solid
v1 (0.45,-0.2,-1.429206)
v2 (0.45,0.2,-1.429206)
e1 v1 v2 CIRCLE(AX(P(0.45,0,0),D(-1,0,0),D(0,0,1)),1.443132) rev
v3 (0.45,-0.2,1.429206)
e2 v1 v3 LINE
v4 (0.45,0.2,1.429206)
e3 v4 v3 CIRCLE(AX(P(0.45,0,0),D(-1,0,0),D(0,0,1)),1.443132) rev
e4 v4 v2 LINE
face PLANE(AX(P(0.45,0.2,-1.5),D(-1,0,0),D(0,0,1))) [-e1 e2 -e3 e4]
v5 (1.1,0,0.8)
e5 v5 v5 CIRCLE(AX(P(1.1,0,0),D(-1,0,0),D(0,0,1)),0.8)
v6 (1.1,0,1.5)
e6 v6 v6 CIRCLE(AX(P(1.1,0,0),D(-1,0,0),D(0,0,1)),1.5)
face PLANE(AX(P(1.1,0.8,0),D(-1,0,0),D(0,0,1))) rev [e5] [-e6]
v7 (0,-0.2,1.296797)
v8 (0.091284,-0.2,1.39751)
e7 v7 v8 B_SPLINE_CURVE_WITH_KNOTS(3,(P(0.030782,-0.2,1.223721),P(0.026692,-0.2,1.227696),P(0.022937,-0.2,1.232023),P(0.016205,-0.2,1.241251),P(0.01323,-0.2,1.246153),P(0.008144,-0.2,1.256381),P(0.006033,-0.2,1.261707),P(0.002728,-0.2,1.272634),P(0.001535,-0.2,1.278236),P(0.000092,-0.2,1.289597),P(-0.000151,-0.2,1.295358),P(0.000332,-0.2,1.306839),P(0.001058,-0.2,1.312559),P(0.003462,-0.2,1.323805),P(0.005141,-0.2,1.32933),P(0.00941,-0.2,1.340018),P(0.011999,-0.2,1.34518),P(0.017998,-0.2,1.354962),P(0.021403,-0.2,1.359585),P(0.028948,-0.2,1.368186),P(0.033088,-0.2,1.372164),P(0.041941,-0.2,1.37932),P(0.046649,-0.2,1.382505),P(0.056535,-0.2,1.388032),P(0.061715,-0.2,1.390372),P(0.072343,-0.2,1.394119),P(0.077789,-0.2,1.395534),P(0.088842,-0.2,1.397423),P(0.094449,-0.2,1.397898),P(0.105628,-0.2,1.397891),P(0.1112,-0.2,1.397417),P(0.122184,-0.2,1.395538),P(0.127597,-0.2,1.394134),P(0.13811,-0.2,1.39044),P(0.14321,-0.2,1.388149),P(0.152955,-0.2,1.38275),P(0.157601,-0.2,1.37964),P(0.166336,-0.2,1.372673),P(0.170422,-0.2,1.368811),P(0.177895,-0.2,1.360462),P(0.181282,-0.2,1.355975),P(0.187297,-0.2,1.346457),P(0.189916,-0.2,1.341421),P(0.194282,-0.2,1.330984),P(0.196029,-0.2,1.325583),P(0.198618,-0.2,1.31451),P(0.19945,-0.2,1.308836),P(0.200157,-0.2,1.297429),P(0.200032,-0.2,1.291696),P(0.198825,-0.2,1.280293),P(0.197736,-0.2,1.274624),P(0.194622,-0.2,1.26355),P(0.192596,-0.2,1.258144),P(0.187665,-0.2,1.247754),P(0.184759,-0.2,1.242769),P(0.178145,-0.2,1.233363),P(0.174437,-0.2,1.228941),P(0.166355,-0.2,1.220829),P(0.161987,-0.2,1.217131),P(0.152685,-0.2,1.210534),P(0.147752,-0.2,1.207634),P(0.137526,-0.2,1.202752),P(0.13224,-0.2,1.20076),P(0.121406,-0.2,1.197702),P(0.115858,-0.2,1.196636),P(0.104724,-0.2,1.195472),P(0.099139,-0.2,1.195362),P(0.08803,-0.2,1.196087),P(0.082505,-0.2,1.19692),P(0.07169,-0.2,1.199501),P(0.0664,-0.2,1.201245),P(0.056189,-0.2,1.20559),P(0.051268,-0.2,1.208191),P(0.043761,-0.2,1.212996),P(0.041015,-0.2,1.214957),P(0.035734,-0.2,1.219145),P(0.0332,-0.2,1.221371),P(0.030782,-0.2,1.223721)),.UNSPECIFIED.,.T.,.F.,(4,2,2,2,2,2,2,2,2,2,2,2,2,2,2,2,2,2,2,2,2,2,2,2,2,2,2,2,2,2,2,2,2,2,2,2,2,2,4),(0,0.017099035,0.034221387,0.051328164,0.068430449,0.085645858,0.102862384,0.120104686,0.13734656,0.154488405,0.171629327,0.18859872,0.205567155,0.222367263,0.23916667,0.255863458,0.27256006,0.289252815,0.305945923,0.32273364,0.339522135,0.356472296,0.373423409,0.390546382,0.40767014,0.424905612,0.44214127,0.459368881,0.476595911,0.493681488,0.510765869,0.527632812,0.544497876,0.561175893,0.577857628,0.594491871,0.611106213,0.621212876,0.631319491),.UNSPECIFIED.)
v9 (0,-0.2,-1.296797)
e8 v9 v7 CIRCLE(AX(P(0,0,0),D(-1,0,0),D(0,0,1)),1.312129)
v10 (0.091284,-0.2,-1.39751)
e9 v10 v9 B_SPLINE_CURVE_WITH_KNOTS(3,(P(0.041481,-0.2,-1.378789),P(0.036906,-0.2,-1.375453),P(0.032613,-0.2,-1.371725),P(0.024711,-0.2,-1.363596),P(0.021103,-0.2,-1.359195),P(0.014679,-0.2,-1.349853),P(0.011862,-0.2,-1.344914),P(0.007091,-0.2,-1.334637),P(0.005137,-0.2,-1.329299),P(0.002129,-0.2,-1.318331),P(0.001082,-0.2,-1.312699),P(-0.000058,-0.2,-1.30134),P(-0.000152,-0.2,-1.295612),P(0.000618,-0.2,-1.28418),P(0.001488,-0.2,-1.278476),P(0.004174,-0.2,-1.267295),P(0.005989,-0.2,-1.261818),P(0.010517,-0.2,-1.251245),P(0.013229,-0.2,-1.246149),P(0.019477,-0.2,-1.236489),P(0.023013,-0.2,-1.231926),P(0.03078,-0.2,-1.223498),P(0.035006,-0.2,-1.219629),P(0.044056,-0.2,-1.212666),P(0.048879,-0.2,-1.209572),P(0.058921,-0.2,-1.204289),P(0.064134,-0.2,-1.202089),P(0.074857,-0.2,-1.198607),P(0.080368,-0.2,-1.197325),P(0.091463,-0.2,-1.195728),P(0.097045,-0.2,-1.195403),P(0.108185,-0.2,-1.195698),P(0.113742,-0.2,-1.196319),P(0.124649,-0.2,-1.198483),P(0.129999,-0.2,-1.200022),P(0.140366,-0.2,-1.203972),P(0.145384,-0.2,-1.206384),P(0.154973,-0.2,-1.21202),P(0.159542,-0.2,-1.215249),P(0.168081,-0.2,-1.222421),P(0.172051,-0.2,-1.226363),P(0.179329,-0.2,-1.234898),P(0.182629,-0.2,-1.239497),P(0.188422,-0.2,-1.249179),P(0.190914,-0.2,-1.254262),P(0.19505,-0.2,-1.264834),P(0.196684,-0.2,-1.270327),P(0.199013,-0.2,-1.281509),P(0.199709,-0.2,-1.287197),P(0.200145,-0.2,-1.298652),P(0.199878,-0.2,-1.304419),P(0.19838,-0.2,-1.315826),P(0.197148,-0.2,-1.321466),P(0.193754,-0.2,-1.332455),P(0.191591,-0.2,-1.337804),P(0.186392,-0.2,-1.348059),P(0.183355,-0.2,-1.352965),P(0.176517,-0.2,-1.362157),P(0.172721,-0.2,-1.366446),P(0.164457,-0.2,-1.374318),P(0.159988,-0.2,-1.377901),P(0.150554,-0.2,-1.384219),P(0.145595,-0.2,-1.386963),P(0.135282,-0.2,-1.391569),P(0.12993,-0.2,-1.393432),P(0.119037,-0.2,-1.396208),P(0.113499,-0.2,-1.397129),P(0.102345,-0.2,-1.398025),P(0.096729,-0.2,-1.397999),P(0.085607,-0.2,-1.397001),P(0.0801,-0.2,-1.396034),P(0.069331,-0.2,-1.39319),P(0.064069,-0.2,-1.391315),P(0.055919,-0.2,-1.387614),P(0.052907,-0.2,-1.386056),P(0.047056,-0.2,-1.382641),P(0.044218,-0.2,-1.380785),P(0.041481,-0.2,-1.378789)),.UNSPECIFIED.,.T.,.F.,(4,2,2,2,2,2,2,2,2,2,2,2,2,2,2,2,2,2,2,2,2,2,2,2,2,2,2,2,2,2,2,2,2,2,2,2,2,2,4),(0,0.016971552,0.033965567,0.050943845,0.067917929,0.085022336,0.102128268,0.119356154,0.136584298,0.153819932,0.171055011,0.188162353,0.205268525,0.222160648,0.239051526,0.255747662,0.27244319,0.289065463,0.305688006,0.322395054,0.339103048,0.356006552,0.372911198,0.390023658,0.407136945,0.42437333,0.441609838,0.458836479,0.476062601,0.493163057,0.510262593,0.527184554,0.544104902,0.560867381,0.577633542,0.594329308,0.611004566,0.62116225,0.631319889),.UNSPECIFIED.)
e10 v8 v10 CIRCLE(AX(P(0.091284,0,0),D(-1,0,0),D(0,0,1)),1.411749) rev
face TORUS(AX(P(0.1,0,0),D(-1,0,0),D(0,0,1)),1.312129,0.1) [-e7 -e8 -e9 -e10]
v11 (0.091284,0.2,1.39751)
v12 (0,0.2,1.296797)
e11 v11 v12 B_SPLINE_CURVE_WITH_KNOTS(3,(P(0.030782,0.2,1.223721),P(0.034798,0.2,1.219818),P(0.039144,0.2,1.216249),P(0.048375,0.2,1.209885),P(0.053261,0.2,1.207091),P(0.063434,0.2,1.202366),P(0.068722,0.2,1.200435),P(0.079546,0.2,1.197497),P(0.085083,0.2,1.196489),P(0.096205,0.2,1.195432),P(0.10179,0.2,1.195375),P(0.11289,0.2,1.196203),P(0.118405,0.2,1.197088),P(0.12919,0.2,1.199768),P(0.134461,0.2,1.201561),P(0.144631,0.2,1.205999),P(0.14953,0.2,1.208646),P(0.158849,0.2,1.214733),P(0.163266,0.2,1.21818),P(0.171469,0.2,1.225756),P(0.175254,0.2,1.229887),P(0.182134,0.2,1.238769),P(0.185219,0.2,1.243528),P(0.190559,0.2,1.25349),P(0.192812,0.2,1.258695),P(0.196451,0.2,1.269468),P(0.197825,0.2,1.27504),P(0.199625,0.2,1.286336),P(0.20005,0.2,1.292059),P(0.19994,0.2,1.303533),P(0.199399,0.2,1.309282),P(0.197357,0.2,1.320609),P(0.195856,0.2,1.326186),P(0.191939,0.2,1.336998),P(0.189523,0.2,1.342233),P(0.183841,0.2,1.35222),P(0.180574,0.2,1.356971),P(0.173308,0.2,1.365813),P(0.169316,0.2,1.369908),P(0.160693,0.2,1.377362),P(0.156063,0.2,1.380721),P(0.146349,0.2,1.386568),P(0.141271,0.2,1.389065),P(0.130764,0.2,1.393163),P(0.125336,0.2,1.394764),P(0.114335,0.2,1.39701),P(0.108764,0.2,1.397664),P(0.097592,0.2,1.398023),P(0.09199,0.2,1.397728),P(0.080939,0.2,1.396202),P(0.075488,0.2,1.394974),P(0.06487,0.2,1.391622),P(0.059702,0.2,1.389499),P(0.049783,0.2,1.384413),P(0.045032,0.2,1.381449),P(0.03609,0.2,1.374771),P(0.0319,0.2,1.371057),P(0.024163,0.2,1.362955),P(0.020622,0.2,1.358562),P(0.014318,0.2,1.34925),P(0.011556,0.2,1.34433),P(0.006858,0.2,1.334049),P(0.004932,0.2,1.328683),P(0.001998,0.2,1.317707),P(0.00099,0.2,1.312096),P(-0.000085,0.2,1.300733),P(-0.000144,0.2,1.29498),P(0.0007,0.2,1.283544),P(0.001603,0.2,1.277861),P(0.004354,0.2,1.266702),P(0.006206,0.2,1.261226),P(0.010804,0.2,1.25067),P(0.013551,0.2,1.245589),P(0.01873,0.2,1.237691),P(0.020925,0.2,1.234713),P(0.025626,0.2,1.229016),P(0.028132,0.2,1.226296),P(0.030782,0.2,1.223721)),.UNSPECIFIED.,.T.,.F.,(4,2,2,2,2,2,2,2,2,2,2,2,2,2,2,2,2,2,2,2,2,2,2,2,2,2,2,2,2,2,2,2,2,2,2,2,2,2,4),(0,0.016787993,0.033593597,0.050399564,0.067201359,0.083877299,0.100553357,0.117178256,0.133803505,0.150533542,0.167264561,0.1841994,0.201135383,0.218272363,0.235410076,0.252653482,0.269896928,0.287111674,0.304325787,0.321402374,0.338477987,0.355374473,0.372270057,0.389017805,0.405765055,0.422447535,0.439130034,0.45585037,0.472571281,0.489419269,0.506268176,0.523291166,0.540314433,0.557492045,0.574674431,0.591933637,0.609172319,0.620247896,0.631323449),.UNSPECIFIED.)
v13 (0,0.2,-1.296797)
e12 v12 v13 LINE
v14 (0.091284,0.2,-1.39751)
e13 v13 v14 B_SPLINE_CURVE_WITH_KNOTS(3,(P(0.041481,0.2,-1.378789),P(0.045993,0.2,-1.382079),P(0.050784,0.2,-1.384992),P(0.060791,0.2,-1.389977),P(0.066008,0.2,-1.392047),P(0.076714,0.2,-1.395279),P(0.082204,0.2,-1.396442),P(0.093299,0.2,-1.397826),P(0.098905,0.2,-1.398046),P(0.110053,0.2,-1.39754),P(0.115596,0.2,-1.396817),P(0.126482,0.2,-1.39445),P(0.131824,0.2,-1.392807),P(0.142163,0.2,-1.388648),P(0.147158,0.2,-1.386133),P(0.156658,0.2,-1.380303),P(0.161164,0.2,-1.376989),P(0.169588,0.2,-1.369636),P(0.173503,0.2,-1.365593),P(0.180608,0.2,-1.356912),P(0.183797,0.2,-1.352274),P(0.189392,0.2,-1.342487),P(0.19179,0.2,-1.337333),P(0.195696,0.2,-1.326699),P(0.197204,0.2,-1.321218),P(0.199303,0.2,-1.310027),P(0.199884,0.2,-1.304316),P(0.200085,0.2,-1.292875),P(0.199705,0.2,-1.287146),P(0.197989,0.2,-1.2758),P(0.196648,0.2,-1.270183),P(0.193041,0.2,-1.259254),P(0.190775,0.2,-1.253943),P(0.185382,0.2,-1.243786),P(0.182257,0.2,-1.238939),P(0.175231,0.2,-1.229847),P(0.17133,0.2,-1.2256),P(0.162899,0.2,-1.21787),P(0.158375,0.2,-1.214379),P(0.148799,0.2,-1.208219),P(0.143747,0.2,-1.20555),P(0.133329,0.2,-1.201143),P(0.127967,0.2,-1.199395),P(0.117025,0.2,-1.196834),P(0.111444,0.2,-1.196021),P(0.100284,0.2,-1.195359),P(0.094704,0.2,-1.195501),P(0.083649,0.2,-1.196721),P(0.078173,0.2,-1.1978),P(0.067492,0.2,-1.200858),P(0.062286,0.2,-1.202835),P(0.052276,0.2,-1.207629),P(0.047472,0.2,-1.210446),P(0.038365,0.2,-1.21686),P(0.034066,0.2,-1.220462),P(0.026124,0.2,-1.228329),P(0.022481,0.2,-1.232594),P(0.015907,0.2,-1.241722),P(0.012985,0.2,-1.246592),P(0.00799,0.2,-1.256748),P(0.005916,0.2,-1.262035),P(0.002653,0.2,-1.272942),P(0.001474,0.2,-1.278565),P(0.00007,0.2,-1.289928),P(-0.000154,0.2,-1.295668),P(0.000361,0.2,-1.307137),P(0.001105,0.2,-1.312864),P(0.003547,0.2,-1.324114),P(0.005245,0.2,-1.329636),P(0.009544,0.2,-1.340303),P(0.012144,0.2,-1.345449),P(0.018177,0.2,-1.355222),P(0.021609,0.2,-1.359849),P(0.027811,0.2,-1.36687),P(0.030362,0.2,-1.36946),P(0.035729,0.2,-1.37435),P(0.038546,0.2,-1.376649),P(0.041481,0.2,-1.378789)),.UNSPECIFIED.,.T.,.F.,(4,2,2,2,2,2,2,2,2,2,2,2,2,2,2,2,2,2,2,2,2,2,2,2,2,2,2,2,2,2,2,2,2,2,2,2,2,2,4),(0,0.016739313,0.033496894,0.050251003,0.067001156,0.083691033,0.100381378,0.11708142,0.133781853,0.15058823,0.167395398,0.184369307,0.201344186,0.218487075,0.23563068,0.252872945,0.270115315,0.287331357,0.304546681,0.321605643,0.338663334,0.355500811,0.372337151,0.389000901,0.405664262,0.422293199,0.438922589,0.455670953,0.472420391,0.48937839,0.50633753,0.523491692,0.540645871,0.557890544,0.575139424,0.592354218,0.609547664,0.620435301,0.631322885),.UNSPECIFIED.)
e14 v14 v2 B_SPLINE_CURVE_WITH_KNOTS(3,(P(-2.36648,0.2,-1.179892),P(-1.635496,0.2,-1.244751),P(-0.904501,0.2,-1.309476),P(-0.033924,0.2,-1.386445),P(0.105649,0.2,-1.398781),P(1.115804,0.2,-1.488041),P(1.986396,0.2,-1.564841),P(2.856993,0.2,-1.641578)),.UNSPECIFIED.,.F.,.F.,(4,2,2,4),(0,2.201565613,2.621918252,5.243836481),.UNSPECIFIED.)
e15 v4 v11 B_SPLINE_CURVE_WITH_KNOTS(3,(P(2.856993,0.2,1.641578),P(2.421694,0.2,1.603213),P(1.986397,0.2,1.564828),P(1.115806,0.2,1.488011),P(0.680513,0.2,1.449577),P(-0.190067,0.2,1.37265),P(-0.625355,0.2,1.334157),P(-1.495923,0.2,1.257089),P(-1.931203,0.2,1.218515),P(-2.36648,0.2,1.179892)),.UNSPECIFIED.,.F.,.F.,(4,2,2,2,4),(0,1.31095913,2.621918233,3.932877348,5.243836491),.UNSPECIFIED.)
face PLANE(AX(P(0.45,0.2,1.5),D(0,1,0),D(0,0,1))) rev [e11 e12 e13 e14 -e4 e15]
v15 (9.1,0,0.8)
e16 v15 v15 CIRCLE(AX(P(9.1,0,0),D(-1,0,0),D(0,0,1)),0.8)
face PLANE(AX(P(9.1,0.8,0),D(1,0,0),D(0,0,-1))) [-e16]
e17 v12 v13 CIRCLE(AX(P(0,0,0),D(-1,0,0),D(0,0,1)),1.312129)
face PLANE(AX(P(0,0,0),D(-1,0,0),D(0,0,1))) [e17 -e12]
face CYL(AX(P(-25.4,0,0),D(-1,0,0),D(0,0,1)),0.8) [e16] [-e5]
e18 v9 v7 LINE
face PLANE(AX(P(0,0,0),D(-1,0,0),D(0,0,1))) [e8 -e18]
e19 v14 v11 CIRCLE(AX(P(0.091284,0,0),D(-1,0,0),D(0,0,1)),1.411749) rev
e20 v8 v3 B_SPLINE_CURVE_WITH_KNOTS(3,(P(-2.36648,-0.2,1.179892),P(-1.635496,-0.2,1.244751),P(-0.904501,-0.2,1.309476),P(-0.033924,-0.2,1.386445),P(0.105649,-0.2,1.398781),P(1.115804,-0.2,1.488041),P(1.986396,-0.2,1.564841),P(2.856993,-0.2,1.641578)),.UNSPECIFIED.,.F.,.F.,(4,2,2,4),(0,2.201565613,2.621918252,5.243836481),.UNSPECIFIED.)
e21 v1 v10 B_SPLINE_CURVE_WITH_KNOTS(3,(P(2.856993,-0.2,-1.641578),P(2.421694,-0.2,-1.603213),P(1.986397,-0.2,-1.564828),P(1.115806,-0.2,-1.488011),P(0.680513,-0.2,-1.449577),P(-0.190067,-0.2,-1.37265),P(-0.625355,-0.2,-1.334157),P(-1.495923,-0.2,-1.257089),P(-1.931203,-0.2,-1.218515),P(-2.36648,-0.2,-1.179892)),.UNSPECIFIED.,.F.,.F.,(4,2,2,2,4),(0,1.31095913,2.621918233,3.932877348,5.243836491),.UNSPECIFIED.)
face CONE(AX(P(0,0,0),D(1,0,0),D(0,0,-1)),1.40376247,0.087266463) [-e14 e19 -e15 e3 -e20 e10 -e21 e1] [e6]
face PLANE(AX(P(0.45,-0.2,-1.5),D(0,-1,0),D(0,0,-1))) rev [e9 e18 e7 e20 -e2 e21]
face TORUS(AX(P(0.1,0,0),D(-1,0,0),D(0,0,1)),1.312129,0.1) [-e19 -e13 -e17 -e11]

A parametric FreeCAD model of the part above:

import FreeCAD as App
import Part
import Sketcher
from FreeCAD import Vector
Q = App.Units.Quantity


def edges_at(feature, points):
    """Names of the edges that pass closest to the given points."""
    edges = feature.Shape.Edges
    near = lambda p: min(range(len(edges)), key=lambda i: edges[i].distToShape(Part.Vertex(*p))[0])
    return sorted({f"Edge{near(p) + 1}" for p in points})


def add_polygon(sketch, points):
    """Adds a closed chain of lines whose ends are joined by coincident constraints."""
    first, n = sketch.GeometryCount, len(points)
    for a, b in zip(points, points[1:] + points[:1]):
        sketch.addGeometry(Part.LineSegment(App.Vector(*a, 0), App.Vector(*b, 0)), False)
    for i in range(n):
        sketch.addConstraint(Sketcher.Constraint("Coincident", first + i, 2, first + (i + 1) % n, 1))

doc = App.newDocument("Part")
body = doc.addObject("PartDesign::Body", "Body")

# Sketch on XY plane
sketch1 = body.newObject("Sketcher::SketchObject", "Sketch")
sketch1.AttachmentSupport = (doc.getObject("XY_Plane"), [""])
sketch1.MapMode = "FlatFace"
add_polygon(sketch1, [(1.1, 0.8), (1.1, 1.5), (0, 1.403762), (0, 0), (9.1, 0), (9.1, 0.8)])  # lines 0-5
sketch1.addConstraint(Sketcher.Constraint("Vertical", 0))
sketch1.addConstraint(Sketcher.Constraint("Vertical", 2))
sketch1.addConstraint(Sketcher.Constraint("Horizontal", 3))
sketch1.addConstraint(Sketcher.Constraint("Vertical", 4))
sketch1.addConstraint(Sketcher.Constraint("Horizontal", 5))
sketch1.addConstraint(Sketcher.Constraint("Coincident", 2, 2, -1, 1))
sketch1.addConstraint(Sketcher.Constraint("DistanceX", 5, 2, 5, 1, Q("8 mm")))
sketch1.addConstraint(Sketcher.Constraint("Angle", 1, Q("-175 deg")))
sketch1.addConstraint(Sketcher.Constraint("DistanceX", 3, 1, 3, 2, Q("9.1 mm")))
sketch1.addConstraint(Sketcher.Constraint("DistanceY", 0, 1, 0, 2, Q("0.7 mm")))
sketch1.addConstraint(Sketcher.Constraint("DistanceY", 4, 1, 4, 2, Q("0.8 mm")))
revolution = body.newObject("PartDesign::Revolution", "Revolution")
revolution.Profile = sketch1
revolution.ReferenceAxis = (sketch1, ["H_Axis"])
revolution.Angle = 360
doc.recompute()

fillet = body.newObject("PartDesign::Fillet", "Fillet")
fillet.Base = (revolution, edges_at(revolution, [(0, -1.404, 0)]))
fillet.Radius = 0.1

# Sketch on YZ plane
sketch2 = body.newObject("Sketcher::SketchObject", "Sketch001")
sketch2.AttachmentSupport = (doc.getObject("YZ_Plane"), [""])
sketch2.MapMode = "FlatFace"
add_polygon(sketch2, [(0.2, 1.5), (-0.2, 1.5), (-0.2, -1.5), (0.2, -1.5)])  # lines 0-3
sketch2.addConstraint(Sketcher.Constraint("Horizontal", 0))
sketch2.addConstraint(Sketcher.Constraint("Vertical", 1))
sketch2.addConstraint(Sketcher.Constraint("Horizontal", 2))
sketch2.addConstraint(Sketcher.Constraint("Vertical", 3))
sketch2.addConstraint(Sketcher.Constraint("Symmetric", 0, 2, 2, 2, -1, 1))
sketch2.addConstraint(Sketcher.Constraint("DistanceY", 1, 2, 1, 1, Q("3 mm")))
sketch2.addConstraint(Sketcher.Constraint("DistanceX", 0, 2, 0, 1, Q("0.4 mm")))
pocket1 = body.newObject("PartDesign::Pocket", "Pocket")
pocket1.Profile = sketch2
pocket1.Length = 0.45
pocket1.Reversed = True

doc.recompute()
